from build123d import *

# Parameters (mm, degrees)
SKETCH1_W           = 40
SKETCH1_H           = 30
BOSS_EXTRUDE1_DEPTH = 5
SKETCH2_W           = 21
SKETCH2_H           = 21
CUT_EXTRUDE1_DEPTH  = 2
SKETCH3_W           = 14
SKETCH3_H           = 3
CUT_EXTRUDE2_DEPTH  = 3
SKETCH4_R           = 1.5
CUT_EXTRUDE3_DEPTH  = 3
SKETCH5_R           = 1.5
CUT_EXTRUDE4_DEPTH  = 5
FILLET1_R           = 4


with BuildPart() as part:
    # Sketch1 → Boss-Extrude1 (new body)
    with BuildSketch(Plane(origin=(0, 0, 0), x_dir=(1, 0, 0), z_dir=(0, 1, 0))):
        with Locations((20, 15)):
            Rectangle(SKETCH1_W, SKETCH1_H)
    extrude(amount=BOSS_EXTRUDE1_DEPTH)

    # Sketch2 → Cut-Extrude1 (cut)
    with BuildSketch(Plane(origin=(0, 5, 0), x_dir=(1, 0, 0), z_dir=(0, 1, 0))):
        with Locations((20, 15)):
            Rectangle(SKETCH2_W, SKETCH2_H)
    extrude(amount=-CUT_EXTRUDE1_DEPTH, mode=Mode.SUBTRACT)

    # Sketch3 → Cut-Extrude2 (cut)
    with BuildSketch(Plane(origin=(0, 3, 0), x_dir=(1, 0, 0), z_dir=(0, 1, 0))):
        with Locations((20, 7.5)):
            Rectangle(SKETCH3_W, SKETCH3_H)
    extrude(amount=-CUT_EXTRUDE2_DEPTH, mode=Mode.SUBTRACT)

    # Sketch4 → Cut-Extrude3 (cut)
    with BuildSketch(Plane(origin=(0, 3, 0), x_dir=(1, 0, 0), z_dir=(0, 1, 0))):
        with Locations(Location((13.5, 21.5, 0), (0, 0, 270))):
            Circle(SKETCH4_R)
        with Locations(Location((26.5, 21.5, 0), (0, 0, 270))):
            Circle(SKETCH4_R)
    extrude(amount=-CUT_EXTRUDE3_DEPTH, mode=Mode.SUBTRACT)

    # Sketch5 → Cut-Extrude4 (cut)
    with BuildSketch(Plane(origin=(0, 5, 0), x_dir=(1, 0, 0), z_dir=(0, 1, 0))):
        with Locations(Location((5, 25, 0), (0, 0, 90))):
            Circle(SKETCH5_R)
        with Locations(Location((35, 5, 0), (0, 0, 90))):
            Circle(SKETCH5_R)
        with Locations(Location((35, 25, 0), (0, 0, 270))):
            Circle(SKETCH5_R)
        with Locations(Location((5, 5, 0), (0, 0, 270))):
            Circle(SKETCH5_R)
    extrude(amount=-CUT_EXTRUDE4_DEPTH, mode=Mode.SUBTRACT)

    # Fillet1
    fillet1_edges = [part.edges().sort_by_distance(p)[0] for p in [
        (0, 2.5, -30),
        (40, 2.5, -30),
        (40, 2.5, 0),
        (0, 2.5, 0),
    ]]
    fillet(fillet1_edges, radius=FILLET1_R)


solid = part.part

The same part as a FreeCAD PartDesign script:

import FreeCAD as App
import Part
import Sketcher
from FreeCAD import Vector
Q = App.Units.Quantity


def edges_at(feature, points):
    """Names of the edges that pass closest to the given points."""
    edges = feature.Shape.Edges
    near = lambda p: min(range(len(edges)), key=lambda i: edges[i].distToShape(Part.Vertex(*p))[0])
    return sorted({f"Edge{near(p) + 1}" for p in points})

doc = App.newDocument("Part")
body = doc.addObject("PartDesign::Body", "Body")

# Sketch on XZ plane
sketch1 = body.newObject("Sketcher::SketchObject", "Sketch")
sketch1.AttachmentSupport = (doc.getObject("XZ_Plane"), [""])
sketch1.MapMode = "FlatFace"
sketch1.addGeometry([
    Part.LineSegment(Vector(0, -30, 0), Vector(0, 0, 0)),
    Part.LineSegment(Vector(0, 0, 0), Vector(40, 0, 0)),
    Part.LineSegment(Vector(40, 0, 0), Vector(40, -30, 0)),
    Part.LineSegment(Vector(40, -30, 0), Vector(0, -30, 0)),
], False)
sketch1.addConstraint([
    Sketcher.Constraint("Coincident", 0, 2, 1, 1),
    Sketcher.Constraint("Coincident", 1, 2, 2, 1),
    Sketcher.Constraint("Coincident", 2, 2, 3, 1),
    Sketcher.Constraint("Coincident", 3, 2, 0, 1),
    Sketcher.Constraint("Vertical", 0),
    Sketcher.Constraint("Horizontal", 1),
    Sketcher.Constraint("Vertical", 2),
    Sketcher.Constraint("Horizontal", 3),
    Sketcher.Constraint("Coincident", 0, 2, -1, 1),
    Sketcher.Constraint("DistanceX", 1, 1, 1, 2, Q("40 mm")),
    Sketcher.Constraint("DistanceY", 0, 1, 0, 2, Q("30 mm")),
])
pad1 = body.newObject("PartDesign::Pad", "Pad")
pad1.Profile = sketch1
pad1.Length = 5
pad1.Reversed = True

# Sketch on XZ plane
sketch2 = body.newObject("Sketcher::SketchObject", "Sketch001")
sketch2.AttachmentSupport = (doc.getObject("XZ_Plane"), [""])
sketch2.MapMode = "FlatFace"
sketch2.AttachmentOffset = App.Placement(Vector(0, 0, -5), App.Rotation())
sketch2.addGeometry([
    Part.LineSegment(Vector(10, -26, 0), Vector(10, -4, 0)),
    Part.LineSegment(Vector(10, -4, 0), Vector(30, -4, 0)),
    Part.LineSegment(Vector(30, -4, 0), Vector(30, -26, 0)),
    Part.LineSegment(Vector(30, -26, 0), Vector(10, -26, 0)),
], False)
sketch2.addConstraint([
    Sketcher.Constraint("Coincident", 0, 2, 1, 1),
    Sketcher.Constraint("Coincident", 1, 2, 2, 1),
    Sketcher.Constraint("Coincident", 2, 2, 3, 1),
    Sketcher.Constraint("Coincident", 3, 2, 0, 1),
    Sketcher.Constraint("Vertical", 0),
    Sketcher.Constraint("Horizontal", 1),
    Sketcher.Constraint("Vertical", 2),
    Sketcher.Constraint("Horizontal", 3),
    Sketcher.Constraint("Equal", 3, 0),
    Sketcher.Constraint("DistanceX", 1, 1, 1, 2, Q("21 mm")),
    Sketcher.Constraint("DistanceX", -1, 1, 0, 2, Q("9.5 mm")),
    Sketcher.Constraint("DistanceY", 0, 2, -1, 1, Q("4.5 mm")),
])
pocket1 = body.newObject("PartDesign::Pocket", "Pocket")
pocket1.Profile = sketch2
pocket1.Length = 2
pocket1.Reversed = True

# Sketch on XZ plane
sketch3 = body.newObject("Sketcher::SketchObject", "Sketch002")
sketch3.AttachmentSupport = (doc.getObject("XZ_Plane"), [""])
sketch3.MapMode = "FlatFace"
sketch3.AttachmentOffset = App.Placement(Vector(0, 0, -3), App.Rotation())
sketch3.addGeometry([
    Part.LineSegment(Vector(13, -9, 0), Vector(13, -6, 0)),
    Part.LineSegment(Vector(13, -6, 0), Vector(27, -6, 0)),
    Part.LineSegment(Vector(27, -6, 0), Vector(27, -9, 0)),
    Part.LineSegment(Vector(27, -9, 0), Vector(13, -9, 0)),
], False)
sketch3.addConstraint([
    Sketcher.Constraint("Coincident", 0, 2, 1, 1),
    Sketcher.Constraint("Coincident", 1, 2, 2, 1),
    Sketcher.Constraint("Coincident", 2, 2, 3, 1),
    Sketcher.Constraint("Coincident", 3, 2, 0, 1),
    Sketcher.Constraint("Vertical", 0),
    Sketcher.Constraint("Horizontal", 1),
    Sketcher.Constraint("Vertical", 2),
    Sketcher.Constraint("Horizontal", 3),
    Sketcher.Constraint("DistanceX", 1, 1, 1, 2, Q("14 mm")),
    Sketcher.Constraint("DistanceY", 0, 1, 0, 2, Q("3 mm")),
    Sketcher.Constraint("DistanceX", -1, 1, 0, 2, Q("13 mm")),
    Sketcher.Constraint("DistanceY", 0, 2, -1, 1, Q("6 mm")),
])
pocket2 = body.newObject("PartDesign::Pocket", "Pocket001")
pocket2.Profile = sketch3
pocket2.Length = 3
pocket2.Reversed = True

# Sketch on XZ plane
sketch4 = body.newObject("Sketcher::SketchObject", "Sketch003")
sketch4.AttachmentSupport = (doc.getObject("XZ_Plane"), [""])
sketch4.MapMode = "FlatFace"
sketch4.AttachmentOffset = App.Placement(Vector(0, 0, -3), App.Rotation())
sketch4.addGeometry([
    Part.Circle(Vector(13.5, -21.5, 0), Vector(0, 0, 1), 1.5),
    Part.Circle(Vector(26.5, -21.5, 0), Vector(0, 0, 1), 1.5),
], False)
sketch4.addConstraint([
    Sketcher.Constraint("Equal", 0, 1),
    Sketcher.Constraint("Horizontal", 0, 3, 1, 3),
    Sketcher.Constraint("Diameter", 0, Q("3 mm")),
    Sketcher.Constraint("DistanceX", 0, 3, 1, 3, Q("13 mm")),
    Sketcher.Constraint("DistanceX", -1, 1, 0, 3, Q("13.5 mm")),
    Sketcher.Constraint("DistanceY", 0, 3, -1, 1, Q("21.5 mm")),
])
pocket3 = body.newObject("PartDesign::Pocket", "Pocket002")
pocket3.Profile = sketch4
pocket3.Length = 3
pocket3.Reversed = True

# Sketch on XZ plane
sketch5 = body.newObject("Sketcher::SketchObject", "Sketch004")
sketch5.AttachmentSupport = (doc.getObject("XZ_Plane"), [""])
sketch5.MapMode = "FlatFace"
sketch5.AttachmentOffset = App.Placement(Vector(0, 0, -5), App.Rotation())
sketch5.addGeometry([
    Part.Circle(Vector(5, -25, 0), Vector(0, 0, 1), 1.5),
    Part.Circle(Vector(35, -5, 0), Vector(0, 0, 1), 1.5),
    Part.Circle(Vector(35, -25, 0), Vector(0, 0, 1), 1.5),
    Part.Circle(Vector(5, -5, 0), Vector(0, 0, 1), 1.5),
], False)
sketch5.addConstraint([
    Sketcher.Constraint("Equal", 0, 1),
    Sketcher.Constraint("Equal", 1, 2),
    Sketcher.Constraint("Equal", 2, 3),
    Sketcher.Constraint("Horizontal", 0, 3, 2, 3),
    Sketcher.Constraint("Horizontal", 1, 3, 3, 3),
    Sketcher.Constraint("Vertical", 1, 3, 2, 3),
    Sketcher.Constraint("Vertical", 0, 3, 3, 3),
    Sketcher.Constraint("Diameter", 0, Q("3 mm")),
    Sketcher.Constraint("DistanceX", -1, 1, 0, 3, Q("5 mm")),
    Sketcher.Constraint("DistanceY", 0, 3, -1, 1, Q("25 mm")),
    Sketcher.Constraint("DistanceX", -1, 1, 1, 3, Q("35 mm")),
    Sketcher.Constraint("DistanceY", 1, 3, -1, 1, Q("5 mm")),
])
pocket4 = body.newObject("PartDesign::Pocket", "Pocket003")
pocket4.Profile = sketch5
pocket4.Length = 5
pocket4.Reversed = True
doc.recompute()

fillet = body.newObject("PartDesign::Fillet", "Fillet")
fillet.Base = (pocket4, edges_at(pocket4, [
    (0, 2.5, -30),
    (40, 2.5, -30),
    (40, 2.5, 0),
    (0, 2.5, 0),
]))
fillet.Radius = 4

doc.recompute()
